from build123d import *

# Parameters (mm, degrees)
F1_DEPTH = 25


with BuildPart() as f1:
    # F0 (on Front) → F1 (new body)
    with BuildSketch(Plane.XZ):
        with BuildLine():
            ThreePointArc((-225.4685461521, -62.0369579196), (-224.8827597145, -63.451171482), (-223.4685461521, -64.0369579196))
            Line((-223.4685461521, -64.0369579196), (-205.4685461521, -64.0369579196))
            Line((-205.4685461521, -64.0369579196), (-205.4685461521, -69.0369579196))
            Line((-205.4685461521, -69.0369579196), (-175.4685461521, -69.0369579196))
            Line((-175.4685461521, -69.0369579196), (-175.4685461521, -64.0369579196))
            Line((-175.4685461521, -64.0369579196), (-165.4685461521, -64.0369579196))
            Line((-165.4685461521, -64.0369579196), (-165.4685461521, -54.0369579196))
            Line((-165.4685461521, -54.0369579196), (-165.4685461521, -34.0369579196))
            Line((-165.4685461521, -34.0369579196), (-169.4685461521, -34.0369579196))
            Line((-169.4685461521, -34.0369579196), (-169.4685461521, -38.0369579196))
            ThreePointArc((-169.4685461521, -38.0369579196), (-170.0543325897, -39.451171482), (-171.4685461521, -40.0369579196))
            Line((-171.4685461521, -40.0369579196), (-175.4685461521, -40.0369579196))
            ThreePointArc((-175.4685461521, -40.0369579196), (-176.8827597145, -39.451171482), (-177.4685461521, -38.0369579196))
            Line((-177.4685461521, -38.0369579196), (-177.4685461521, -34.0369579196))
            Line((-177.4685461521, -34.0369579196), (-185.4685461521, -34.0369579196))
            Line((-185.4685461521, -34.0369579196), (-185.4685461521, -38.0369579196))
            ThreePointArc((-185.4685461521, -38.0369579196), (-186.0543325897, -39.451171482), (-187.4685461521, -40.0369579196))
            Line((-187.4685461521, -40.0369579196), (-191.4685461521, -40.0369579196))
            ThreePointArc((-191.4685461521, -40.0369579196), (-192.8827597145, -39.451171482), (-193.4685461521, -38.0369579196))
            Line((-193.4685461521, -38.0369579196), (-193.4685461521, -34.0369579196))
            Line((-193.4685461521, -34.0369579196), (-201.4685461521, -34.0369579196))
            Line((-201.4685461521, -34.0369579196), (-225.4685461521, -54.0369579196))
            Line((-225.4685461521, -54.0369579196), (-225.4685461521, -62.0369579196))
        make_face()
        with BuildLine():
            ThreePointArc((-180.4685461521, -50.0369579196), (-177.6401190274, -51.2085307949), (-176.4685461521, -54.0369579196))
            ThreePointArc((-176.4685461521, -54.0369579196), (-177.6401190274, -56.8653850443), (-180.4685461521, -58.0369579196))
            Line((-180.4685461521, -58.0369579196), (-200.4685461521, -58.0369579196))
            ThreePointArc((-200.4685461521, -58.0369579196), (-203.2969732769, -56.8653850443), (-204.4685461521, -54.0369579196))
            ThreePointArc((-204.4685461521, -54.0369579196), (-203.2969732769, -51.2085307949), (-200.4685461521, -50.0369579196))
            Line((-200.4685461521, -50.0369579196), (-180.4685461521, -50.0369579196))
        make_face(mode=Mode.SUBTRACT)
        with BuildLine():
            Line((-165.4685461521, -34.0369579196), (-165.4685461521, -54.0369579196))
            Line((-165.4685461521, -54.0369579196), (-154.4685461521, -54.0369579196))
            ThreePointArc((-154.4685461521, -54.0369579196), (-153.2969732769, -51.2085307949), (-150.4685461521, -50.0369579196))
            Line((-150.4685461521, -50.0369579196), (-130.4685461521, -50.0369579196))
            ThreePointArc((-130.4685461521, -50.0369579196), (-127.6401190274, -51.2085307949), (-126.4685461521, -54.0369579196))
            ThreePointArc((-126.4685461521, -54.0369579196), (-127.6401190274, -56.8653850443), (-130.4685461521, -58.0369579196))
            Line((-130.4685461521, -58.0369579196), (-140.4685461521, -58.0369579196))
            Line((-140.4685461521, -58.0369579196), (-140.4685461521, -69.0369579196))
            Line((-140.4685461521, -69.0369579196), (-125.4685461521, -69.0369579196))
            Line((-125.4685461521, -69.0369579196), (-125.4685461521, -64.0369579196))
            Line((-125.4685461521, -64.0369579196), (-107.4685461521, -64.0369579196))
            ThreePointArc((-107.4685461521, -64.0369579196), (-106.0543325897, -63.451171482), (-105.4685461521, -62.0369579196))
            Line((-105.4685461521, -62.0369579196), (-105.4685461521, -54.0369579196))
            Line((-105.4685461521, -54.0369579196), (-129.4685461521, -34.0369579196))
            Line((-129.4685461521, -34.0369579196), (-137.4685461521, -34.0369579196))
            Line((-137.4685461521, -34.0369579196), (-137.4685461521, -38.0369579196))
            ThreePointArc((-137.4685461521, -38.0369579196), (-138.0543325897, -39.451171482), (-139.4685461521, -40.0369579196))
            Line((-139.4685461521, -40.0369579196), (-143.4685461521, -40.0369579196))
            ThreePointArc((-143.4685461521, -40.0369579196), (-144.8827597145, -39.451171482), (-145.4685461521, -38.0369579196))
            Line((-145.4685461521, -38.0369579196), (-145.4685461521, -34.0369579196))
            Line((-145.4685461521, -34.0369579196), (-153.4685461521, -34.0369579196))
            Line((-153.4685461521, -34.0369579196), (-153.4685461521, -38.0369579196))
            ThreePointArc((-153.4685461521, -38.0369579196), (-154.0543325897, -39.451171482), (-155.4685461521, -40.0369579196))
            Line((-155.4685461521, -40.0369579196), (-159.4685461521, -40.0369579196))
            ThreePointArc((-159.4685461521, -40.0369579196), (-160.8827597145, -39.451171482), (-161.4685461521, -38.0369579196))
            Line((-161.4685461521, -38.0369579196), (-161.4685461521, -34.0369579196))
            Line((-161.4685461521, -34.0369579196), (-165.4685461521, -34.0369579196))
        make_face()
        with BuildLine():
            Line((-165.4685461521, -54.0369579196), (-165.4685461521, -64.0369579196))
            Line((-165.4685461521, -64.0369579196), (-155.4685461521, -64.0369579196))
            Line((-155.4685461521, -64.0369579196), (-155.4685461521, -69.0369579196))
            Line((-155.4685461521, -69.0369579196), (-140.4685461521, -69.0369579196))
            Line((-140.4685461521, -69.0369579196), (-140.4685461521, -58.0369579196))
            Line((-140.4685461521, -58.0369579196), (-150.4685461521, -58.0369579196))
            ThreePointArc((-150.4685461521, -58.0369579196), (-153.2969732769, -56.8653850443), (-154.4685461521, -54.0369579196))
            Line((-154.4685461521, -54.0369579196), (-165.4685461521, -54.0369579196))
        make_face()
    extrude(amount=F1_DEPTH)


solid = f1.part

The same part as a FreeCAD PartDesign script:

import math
import FreeCAD as App
import Part
import Sketcher

V = App.Vector
Q = App.Units.Quantity

doc = App.newDocument("Part")
body = doc.addObject("PartDesign::Body", "Body")

# Sketch on XZ plane
sketch1 = doc.addObject("Sketcher::SketchObject", "Sketch")
body.addObject(sketch1)
sketch1.AttachmentSupport = (doc.XZ_Plane, [""])
sketch1.MapMode = "FlatFace"
sketch1.addGeometry(Part.ArcOfCircle(Part.Circle(V(-223.468546, -62.036958, 0), V(0, 0, 1), 2), math.radians(180), math.radians(270)), False)
sketch1.addGeometry(Part.LineSegment(V(-223.468546, -64.036958, 0), V(-205.468546, -64.036958, 0)), False)
sketch1.addGeometry(Part.LineSegment(V(-205.468546, -64.036958, 0), V(-205.468546, -69.036958, 0)), False)
sketch1.addGeometry(Part.LineSegment(V(-205.468546, -69.036958, 0), V(-175.468546, -69.036958, 0)), False)
sketch1.addGeometry(Part.LineSegment(V(-175.468546, -69.036958, 0), V(-175.468546, -64.036958, 0)), False)
sketch1.addGeometry(Part.LineSegment(V(-175.468546, -64.036958, 0), V(-155.468546, -64.036958, 0)), False)
sketch1.addGeometry(Part.LineSegment(V(-155.468546, -64.036958, 0), V(-155.468546, -69.036958, 0)), False)
sketch1.addGeometry(Part.LineSegment(V(-155.468546, -69.036958, 0), V(-125.468546, -69.036958, 0)), False)
sketch1.addGeometry(Part.LineSegment(V(-125.468546, -69.036958, 0), V(-125.468546, -64.036958, 0)), False)
sketch1.addGeometry(Part.LineSegment(V(-125.468546, -64.036958, 0), V(-107.468546, -64.036958, 0)), False)
sketch1.addGeometry(Part.ArcOfCircle(Part.Circle(V(-107.468546, -62.036958, 0), V(0, 0, 1), 2), math.radians(-90), math.radians(0)), False)
sketch1.addGeometry(Part.LineSegment(V(-105.468546, -62.036958, 0), V(-105.468546, -54.036958, 0)), False)
sketch1.addGeometry(Part.LineSegment(V(-105.468546, -54.036958, 0), V(-129.468546, -34.036958, 0)), False)
sketch1.addGeometry(Part.LineSegment(V(-129.468546, -34.036958, 0), V(-137.468546, -34.036958, 0)), False)
sketch1.addGeometry(Part.LineSegment(V(-137.468546, -34.036958, 0), V(-137.468546, -38.036958, 0)), False)
sketch1.addGeometry(Part.ArcOfCircle(Part.Circle(V(-139.468546, -38.036958, 0), V(0, 0, 1), 2), math.radians(-90), math.radians(0)), False)
sketch1.addGeometry(Part.LineSegment(V(-139.468546, -40.036958, 0), V(-143.468546, -40.036958, 0)), False)
sketch1.addGeometry(Part.ArcOfCircle(Part.Circle(V(-143.468546, -38.036958, 0), V(0, 0, 1), 2), math.radians(180), math.radians(270)), False)
sketch1.addGeometry(Part.LineSegment(V(-145.468546, -38.036958, 0), V(-145.468546, -34.036958, 0)), False)
sketch1.addGeometry(Part.LineSegment(V(-145.468546, -34.036958, 0), V(-153.468546, -34.036958, 0)), False)
sketch1.addGeometry(Part.LineSegment(V(-153.468546, -34.036958, 0), V(-153.468546, -38.036958, 0)), False)
sketch1.addGeometry(Part.ArcOfCircle(Part.Circle(V(-155.468546, -38.036958, 0), V(0, 0, 1), 2), math.radians(-90), math.radians(0)), False)
sketch1.addGeometry(Part.LineSegment(V(-155.468546, -40.036958, 0), V(-159.468546, -40.036958, 0)), False)
sketch1.addGeometry(Part.ArcOfCircle(Part.Circle(V(-159.468546, -38.036958, 0), V(0, 0, 1), 2), math.radians(180), math.radians(270)), False)
sketch1.addGeometry(Part.LineSegment(V(-161.468546, -38.036958, 0), V(-161.468546, -34.036958, 0)), False)
sketch1.addGeometry(Part.LineSegment(V(-161.468546, -34.036958, 0), V(-169.468546, -34.036958, 0)), False)
sketch1.addGeometry(Part.LineSegment(V(-169.468546, -34.036958, 0), V(-169.468546, -38.036958, 0)), False)
sketch1.addGeometry(Part.ArcOfCircle(Part.Circle(V(-171.468546, -38.036958, 0), V(0, 0, 1), 2), math.radians(-90), math.radians(0)), False)
sketch1.addGeometry(Part.LineSegment(V(-171.468546, -40.036958, 0), V(-175.468546, -40.036958, 0)), False)
sketch1.addGeometry(Part.ArcOfCircle(Part.Circle(V(-175.468546, -38.036958, 0), V(0, 0, 1), 2), math.radians(180), math.radians(270)), False)
sketch1.addGeometry(Part.LineSegment(V(-177.468546, -38.036958, 0), V(-177.468546, -34.036958, 0)), False)
sketch1.addGeometry(Part.LineSegment(V(-177.468546, -34.036958, 0), V(-185.468546, -34.036958, 0)), False)
sketch1.addGeometry(Part.LineSegment(V(-185.468546, -34.036958, 0), V(-185.468546, -38.036958, 0)), False)
sketch1.addGeometry(Part.ArcOfCircle(Part.Circle(V(-187.468546, -38.036958, 0), V(0, 0, 1), 2), math.radians(-90), math.radians(0)), False)
sketch1.addGeometry(Part.LineSegment(V(-187.468546, -40.036958, 0), V(-191.468546, -40.036958, 0)), False)
sketch1.addGeometry(Part.ArcOfCircle(Part.Circle(V(-191.468546, -38.036958, 0), V(0, 0, 1), 2), math.radians(180), math.radians(270)), False)
sketch1.addGeometry(Part.LineSegment(V(-193.468546, -38.036958, 0), V(-193.468546, -34.036958, 0)), False)
sketch1.addGeometry(Part.LineSegment(V(-193.468546, -34.036958, 0), V(-201.468546, -34.036958, 0)), False)
sketch1.addGeometry(Part.LineSegment(V(-201.468546, -34.036958, 0), V(-225.468546, -54.036958, 0)), False)
sketch1.addGeometry(Part.LineSegment(V(-225.468546, -54.036958, 0), V(-225.468546, -62.036958, 0)), False)
sketch1.addGeometry(Part.ArcOfCircle(Part.Circle(V(-150.468546, -54.036958, 0), V(0, 0, 1), 4), math.radians(90), math.radians(180)), False)
sketch1.addGeometry(Part.LineSegment(V(-150.468546, -50.036958, 0), V(-130.468546, -50.036958, 0)), False)
sketch1.addGeometry(Part.ArcOfCircle(Part.Circle(V(-130.468546, -54.036958, 0), V(0, 0, 1), 4), math.radians(0), math.radians(90)), False)
sketch1.addGeometry(Part.ArcOfCircle(Part.Circle(V(-130.468546, -54.036958, 0), V(0, 0, 1), 4), math.radians(-90), math.radians(0)), False)
sketch1.addGeometry(Part.LineSegment(V(-130.468546, -58.036958, 0), V(-150.468546, -58.036958, 0)), False)
sketch1.addGeometry(Part.ArcOfCircle(Part.Circle(V(-150.468546, -54.036958, 0), V(0, 0, 1), 4), math.radians(180), math.radians(270)), False)
sketch1.addGeometry(Part.LineSegment(V(-200.468546, -50.036958, 0), V(-180.468546, -50.036958, 0)), False)
sketch1.addGeometry(Part.ArcOfCircle(Part.Circle(V(-180.468546, -54.036958, 0), V(0, 0, 1), 4), math.radians(0), math.radians(90)), False)
sketch1.addGeometry(Part.ArcOfCircle(Part.Circle(V(-180.468546, -54.036958, 0), V(0, 0, 1), 4), math.radians(-90), math.radians(0)), False)
sketch1.addGeometry(Part.LineSegment(V(-180.468546, -58.036958, 0), V(-200.468546, -58.036958, 0)), False)
sketch1.addGeometry(Part.ArcOfCircle(Part.Circle(V(-200.468546, -54.036958, 0), V(0, 0, 1), 4), math.radians(180), math.radians(270)), False)
sketch1.addGeometry(Part.ArcOfCircle(Part.Circle(V(-200.468546, -54.036958, 0), V(0, 0, 1), 4), math.radians(90), math.radians(180)), False)
sketch1.addConstraint(Sketcher.Constraint("Tangent", 0, 2, 1, 1))
sketch1.addConstraint(Sketcher.Constraint("Coincident", 1, 2, 2, 1))
sketch1.addConstraint(Sketcher.Constraint("Coincident", 2, 2, 3, 1))
sketch1.addConstraint(Sketcher.Constraint("Coincident", 3, 2, 4, 1))
sketch1.addConstraint(Sketcher.Constraint("Coincident", 4, 2, 5, 1))
sketch1.addConstraint(Sketcher.Constraint("Coincident", 5, 2, 6, 1))
sketch1.addConstraint(Sketcher.Constraint("Coincident", 6, 2, 7, 1))
sketch1.addConstraint(Sketcher.Constraint("Coincident", 7, 2, 8, 1))
sketch1.addConstraint(Sketcher.Constraint("Coincident", 8, 2, 9, 1))
sketch1.addConstraint(Sketcher.Constraint("Tangent", 9, 2, 10, 1))
sketch1.addConstraint(Sketcher.Constraint("Tangent", 10, 2, 11, 1))
sketch1.addConstraint(Sketcher.Constraint("Coincident", 11, 2, 12, 1))
sketch1.addConstraint(Sketcher.Constraint("Coincident", 12, 2, 13, 1))
sketch1.addConstraint(Sketcher.Constraint("Coincident", 13, 2, 14, 1))
sketch1.addConstraint(Sketcher.Constraint("Tangent", 14, 2, 15, 2))
sketch1.addConstraint(Sketcher.Constraint("Tangent", 15, 1, 16, 1))
sketch1.addConstraint(Sketcher.Constraint("Tangent", 16, 2, 17, 2))
sketch1.addConstraint(Sketcher.Constraint("Tangent", 17, 1, 18, 1))
sketch1.addConstraint(Sketcher.Constraint("Coincident", 18, 2, 19, 1))
sketch1.addConstraint(Sketcher.Constraint("Coincident", 19, 2, 20, 1))
sketch1.addConstraint(Sketcher.Constraint("Tangent", 20, 2, 21, 2))
sketch1.addConstraint(Sketcher.Constraint("Tangent", 21, 1, 22, 1))
sketch1.addConstraint(Sketcher.Constraint("Tangent", 22, 2, 23, 2))
sketch1.addConstraint(Sketcher.Constraint("Tangent", 23, 1, 24, 1))
sketch1.addConstraint(Sketcher.Constraint("Coincident", 24, 2, 25, 1))
sketch1.addConstraint(Sketcher.Constraint("Coincident", 25, 2, 26, 1))
sketch1.addConstraint(Sketcher.Constraint("Tangent", 26, 2, 27, 2))
sketch1.addConstraint(Sketcher.Constraint("Tangent", 27, 1, 28, 1))
sketch1.addConstraint(Sketcher.Constraint("Tangent", 28, 2, 29, 2))
sketch1.addConstraint(Sketcher.Constraint("Tangent", 29, 1, 30, 1))
sketch1.addConstraint(Sketcher.Constraint("Coincident", 30, 2, 31, 1))
sketch1.addConstraint(Sketcher.Constraint("Coincident", 31, 2, 32, 1))
sketch1.addConstraint(Sketcher.Constraint("Tangent", 32, 2, 33, 2))
sketch1.addConstraint(Sketcher.Constraint("Tangent", 33, 1, 34, 1))
sketch1.addConstraint(Sketcher.Constraint("Tangent", 34, 2, 35, 2))
sketch1.addConstraint(Sketcher.Constraint("Tangent", 35, 1, 36, 1))
sketch1.addConstraint(Sketcher.Constraint("Coincident", 36, 2, 37, 1))
sketch1.addConstraint(Sketcher.Constraint("Coincident", 37, 2, 38, 1))
sketch1.addConstraint(Sketcher.Constraint("Coincident", 38, 2, 39, 1))
sketch1.addConstraint(Sketcher.Constraint("Tangent", 39, 2, 0, 1))
sketch1.addConstraint(Sketcher.Constraint("Tangent", 40, 1, 41, 1))
sketch1.addConstraint(Sketcher.Constraint("Tangent", 41, 2, 42, 2))
sketch1.addConstraint(Sketcher.Constraint("Tangent", 42, 1, 43, 2))
sketch1.addConstraint(Sketcher.Constraint("Tangent", 43, 1, 44, 1))
sketch1.addConstraint(Sketcher.Constraint("Tangent", 44, 2, 45, 2))
sketch1.addConstraint(Sketcher.Constraint("Tangent", 45, 1, 40, 2))
sketch1.addConstraint(Sketcher.Constraint("Tangent", 46, 2, 47, 2))
sketch1.addConstraint(Sketcher.Constraint("Tangent", 47, 1, 48, 2))
sketch1.addConstraint(Sketcher.Constraint("Tangent", 48, 1, 49, 1))
sketch1.addConstraint(Sketcher.Constraint("Tangent", 49, 2, 50, 2))
sketch1.addConstraint(Sketcher.Constraint("Tangent", 50, 1, 51, 2))
sketch1.addConstraint(Sketcher.Constraint("Tangent", 51, 1, 46, 1))
sketch1.addConstraint(Sketcher.Constraint("Horizontal", 1))
sketch1.addConstraint(Sketcher.Constraint("Vertical", 2))
sketch1.addConstraint(Sketcher.Constraint("Horizontal", 3))
sketch1.addConstraint(Sketcher.Constraint("Vertical", 4))
sketch1.addConstraint(Sketcher.Constraint("Horizontal", 5))
sketch1.addConstraint(Sketcher.Constraint("Vertical", 6))
sketch1.addConstraint(Sketcher.Constraint("Horizontal", 7))
sketch1.addConstraint(Sketcher.Constraint("Vertical", 8))
sketch1.addConstraint(Sketcher.Constraint("Horizontal", 9))
sketch1.addConstraint(Sketcher.Constraint("Vertical", 11))
sketch1.addConstraint(Sketcher.Constraint("Horizontal", 13))
sketch1.addConstraint(Sketcher.Constraint("Vertical", 14))
sketch1.addConstraint(Sketcher.Constraint("Horizontal", 16))
sketch1.addConstraint(Sketcher.Constraint("Vertical", 18))
sketch1.addConstraint(Sketcher.Constraint("Horizontal", 19))
sketch1.addConstraint(Sketcher.Constraint("Vertical", 20))
sketch1.addConstraint(Sketcher.Constraint("Horizontal", 22))
sketch1.addConstraint(Sketcher.Constraint("Vertical", 24))
sketch1.addConstraint(Sketcher.Constraint("Horizontal", 25))
sketch1.addConstraint(Sketcher.Constraint("Vertical", 26))
sketch1.addConstraint(Sketcher.Constraint("Horizontal", 28))
sketch1.addConstraint(Sketcher.Constraint("Vertical", 30))
sketch1.addConstraint(Sketcher.Constraint("Horizontal", 31))
sketch1.addConstraint(Sketcher.Constraint("Vertical", 32))
sketch1.addConstraint(Sketcher.Constraint("Horizontal", 34))
sketch1.addConstraint(Sketcher.Constraint("Vertical", 36))
sketch1.addConstraint(Sketcher.Constraint("Horizontal", 37))
sketch1.addConstraint(Sketcher.Constraint("Vertical", 39))
sketch1.addConstraint(Sketcher.Constraint("Horizontal", 41))
sketch1.addConstraint(Sketcher.Constraint("Horizontal", 44))
sketch1.addConstraint(Sketcher.Constraint("Horizontal", 46))
sketch1.addConstraint(Sketcher.Constraint("Horizontal", 49))
sketch1.addConstraint(Sketcher.Constraint("Equal", 0, 10))
sketch1.addConstraint(Sketcher.Constraint("Equal", 10, 15))
sketch1.addConstraint(Sketcher.Constraint("Equal", 15, 17))
sketch1.addConstraint(Sketcher.Constraint("Equal", 17, 21))
sketch1.addConstraint(Sketcher.Constraint("Equal", 21, 23))
sketch1.addConstraint(Sketcher.Constraint("Equal", 23, 27))
sketch1.addConstraint(Sketcher.Constraint("Equal", 27, 29))
sketch1.addConstraint(Sketcher.Constraint("Equal", 29, 33))
sketch1.addConstraint(Sketcher.Constraint("Equal", 33, 35))
sketch1.addConstraint(Sketcher.Constraint("Equal", 40, 42))
sketch1.addConstraint(Sketcher.Constraint("Equal", 42, 43))
sketch1.addConstraint(Sketcher.Constraint("Equal", 45, 47))
sketch1.addConstraint(Sketcher.Constraint("Equal", 47, 48))
sketch1.addConstraint(Sketcher.Constraint("Equal", 48, 50))
sketch1.addConstraint(Sketcher.Constraint("Horizontal", 0, 3, 10, 3))
sketch1.addConstraint(Sketcher.Constraint("Horizontal", 17, 3, 21, 3))
sketch1.addConstraint(Sketcher.Constraint("Horizontal", 23, 3, 27, 3))
sketch1.addConstraint(Sketcher.Constraint("Horizontal", 29, 3, 33, 3))
sketch1.addConstraint(Sketcher.Constraint("Horizontal", 45, 3, 47, 3))
sketch1.addConstraint(Sketcher.Constraint("Horizontal", 1, 2, 4, 2))
sketch1.addConstraint(Sketcher.Constraint("Horizontal", 3, 2, 6, 2))
sketch1.addConstraint(Sketcher.Constraint("Horizontal", 51, 3, 11, 2))
sketch1.addConstraint(Sketcher.Constraint("Horizontal", 13, 2, 18, 2))
sketch1.addConstraint(Sketcher.Constraint("Horizontal", 19, 2, 24, 2))
sketch1.addConstraint(Sketcher.Constraint("Horizontal", 25, 2, 30, 2))
sketch1.addConstraint(Sketcher.Constraint("Horizontal", 31, 2, 36, 2))
sketch1.addConstraint(Sketcher.Constraint("Horizontal", 11, 2, 38, 2))
sketch1.addConstraint(Sketcher.Constraint("Horizontal", 38, 2, 42, 1))
sketch1.addConstraint(Sketcher.Constraint("Horizontal", 42, 1, 45, 1))
sketch1.addConstraint(Sketcher.Constraint("Horizontal", 45, 1, 47, 1))
sketch1.addConstraint(Sketcher.Constraint("Horizontal", 47, 1, 50, 1))
sketch1.addConstraint(Sketcher.Constraint("Vertical", 29, 3, 3, 2))
sketch1.addConstraint(Sketcher.Constraint("Vertical", 21, 3, 5, 2))
sketch1.addConstraint(Sketcher.Constraint("Equal", 3, 7))
sketch1.addConstraint(Sketcher.Constraint("Equal", 1, 9))
sketch1.addConstraint(Sketcher.Constraint("Equal", 13, 19))
sketch1.addConstraint(Sketcher.Constraint("Equal", 16, 22))
sketch1.addConstraint(Sketcher.Constraint("Equal", 19, 25))
sketch1.addConstraint(Sketcher.Constraint("Equal", 22, 28))
sketch1.addConstraint(Sketcher.Constraint("Equal", 25, 31))
sketch1.addConstraint(Sketcher.Constraint("Equal", 28, 34))
sketch1.addConstraint(Sketcher.Constraint("Equal", 31, 37))
sketch1.addConstraint(Sketcher.Constraint("Equal", 5, 41))
sketch1.addConstraint(Sketcher.Constraint("Equal", 44, 46))
sketch1.addConstraint(Sketcher.Constraint("Equal", 37, 11))
sketch1.addConstraint(Sketcher.Constraint("Equal", 34, 14))
sketch1.addConstraint(Sketcher.Constraint("Radius", 0, Q("2 mm")))
sketch1.addConstraint(Sketcher.Constraint("Radius", 40, Q("4 mm")))
sketch1.addConstraint(Sketcher.Constraint("DistanceX", 1, 1, 1, 2, Q("18 mm")))
sketch1.addConstraint(Sketcher.Constraint("DistanceX", 3, 1, 3, 2, Q("30 mm")))
sketch1.addConstraint(Sketcher.Constraint("DistanceX", 5, 1, 5, 2, Q("20 mm")))
sketch1.addConstraint(Sketcher.Constraint("DistanceX", 13, 2, 13, 1, Q("8 mm")))
sketch1.addConstraint(Sketcher.Constraint("DistanceY", 2, 2, 2, 1, Q("5 mm")))
sketch1.addConstraint(Sketcher.Constraint("Distance", 12, Q("31.240999 mm")))
sketch1.addConstraint(Sketcher.Constraint("DistanceX", 0, 3, -1, 1, Q("223.468546 mm")))
sketch1.addConstraint(Sketcher.Constraint("DistanceY", 0, 3, -1, 1, Q("62.036958 mm")))
sketch1.addConstraint(Sketcher.Constraint("DistanceX", 40, 3, -1, 1, Q("150.468546 mm")))
sketch1.addConstraint(Sketcher.Constraint("DistanceX", 47, 3, -1, 1, Q("180.468546 mm")))
pad1 = doc.addObject("PartDesign::Pad", "Pad")
body.addObject(pad1)
pad1.Profile = sketch1
pad1.Length = 25

doc.recompute()
